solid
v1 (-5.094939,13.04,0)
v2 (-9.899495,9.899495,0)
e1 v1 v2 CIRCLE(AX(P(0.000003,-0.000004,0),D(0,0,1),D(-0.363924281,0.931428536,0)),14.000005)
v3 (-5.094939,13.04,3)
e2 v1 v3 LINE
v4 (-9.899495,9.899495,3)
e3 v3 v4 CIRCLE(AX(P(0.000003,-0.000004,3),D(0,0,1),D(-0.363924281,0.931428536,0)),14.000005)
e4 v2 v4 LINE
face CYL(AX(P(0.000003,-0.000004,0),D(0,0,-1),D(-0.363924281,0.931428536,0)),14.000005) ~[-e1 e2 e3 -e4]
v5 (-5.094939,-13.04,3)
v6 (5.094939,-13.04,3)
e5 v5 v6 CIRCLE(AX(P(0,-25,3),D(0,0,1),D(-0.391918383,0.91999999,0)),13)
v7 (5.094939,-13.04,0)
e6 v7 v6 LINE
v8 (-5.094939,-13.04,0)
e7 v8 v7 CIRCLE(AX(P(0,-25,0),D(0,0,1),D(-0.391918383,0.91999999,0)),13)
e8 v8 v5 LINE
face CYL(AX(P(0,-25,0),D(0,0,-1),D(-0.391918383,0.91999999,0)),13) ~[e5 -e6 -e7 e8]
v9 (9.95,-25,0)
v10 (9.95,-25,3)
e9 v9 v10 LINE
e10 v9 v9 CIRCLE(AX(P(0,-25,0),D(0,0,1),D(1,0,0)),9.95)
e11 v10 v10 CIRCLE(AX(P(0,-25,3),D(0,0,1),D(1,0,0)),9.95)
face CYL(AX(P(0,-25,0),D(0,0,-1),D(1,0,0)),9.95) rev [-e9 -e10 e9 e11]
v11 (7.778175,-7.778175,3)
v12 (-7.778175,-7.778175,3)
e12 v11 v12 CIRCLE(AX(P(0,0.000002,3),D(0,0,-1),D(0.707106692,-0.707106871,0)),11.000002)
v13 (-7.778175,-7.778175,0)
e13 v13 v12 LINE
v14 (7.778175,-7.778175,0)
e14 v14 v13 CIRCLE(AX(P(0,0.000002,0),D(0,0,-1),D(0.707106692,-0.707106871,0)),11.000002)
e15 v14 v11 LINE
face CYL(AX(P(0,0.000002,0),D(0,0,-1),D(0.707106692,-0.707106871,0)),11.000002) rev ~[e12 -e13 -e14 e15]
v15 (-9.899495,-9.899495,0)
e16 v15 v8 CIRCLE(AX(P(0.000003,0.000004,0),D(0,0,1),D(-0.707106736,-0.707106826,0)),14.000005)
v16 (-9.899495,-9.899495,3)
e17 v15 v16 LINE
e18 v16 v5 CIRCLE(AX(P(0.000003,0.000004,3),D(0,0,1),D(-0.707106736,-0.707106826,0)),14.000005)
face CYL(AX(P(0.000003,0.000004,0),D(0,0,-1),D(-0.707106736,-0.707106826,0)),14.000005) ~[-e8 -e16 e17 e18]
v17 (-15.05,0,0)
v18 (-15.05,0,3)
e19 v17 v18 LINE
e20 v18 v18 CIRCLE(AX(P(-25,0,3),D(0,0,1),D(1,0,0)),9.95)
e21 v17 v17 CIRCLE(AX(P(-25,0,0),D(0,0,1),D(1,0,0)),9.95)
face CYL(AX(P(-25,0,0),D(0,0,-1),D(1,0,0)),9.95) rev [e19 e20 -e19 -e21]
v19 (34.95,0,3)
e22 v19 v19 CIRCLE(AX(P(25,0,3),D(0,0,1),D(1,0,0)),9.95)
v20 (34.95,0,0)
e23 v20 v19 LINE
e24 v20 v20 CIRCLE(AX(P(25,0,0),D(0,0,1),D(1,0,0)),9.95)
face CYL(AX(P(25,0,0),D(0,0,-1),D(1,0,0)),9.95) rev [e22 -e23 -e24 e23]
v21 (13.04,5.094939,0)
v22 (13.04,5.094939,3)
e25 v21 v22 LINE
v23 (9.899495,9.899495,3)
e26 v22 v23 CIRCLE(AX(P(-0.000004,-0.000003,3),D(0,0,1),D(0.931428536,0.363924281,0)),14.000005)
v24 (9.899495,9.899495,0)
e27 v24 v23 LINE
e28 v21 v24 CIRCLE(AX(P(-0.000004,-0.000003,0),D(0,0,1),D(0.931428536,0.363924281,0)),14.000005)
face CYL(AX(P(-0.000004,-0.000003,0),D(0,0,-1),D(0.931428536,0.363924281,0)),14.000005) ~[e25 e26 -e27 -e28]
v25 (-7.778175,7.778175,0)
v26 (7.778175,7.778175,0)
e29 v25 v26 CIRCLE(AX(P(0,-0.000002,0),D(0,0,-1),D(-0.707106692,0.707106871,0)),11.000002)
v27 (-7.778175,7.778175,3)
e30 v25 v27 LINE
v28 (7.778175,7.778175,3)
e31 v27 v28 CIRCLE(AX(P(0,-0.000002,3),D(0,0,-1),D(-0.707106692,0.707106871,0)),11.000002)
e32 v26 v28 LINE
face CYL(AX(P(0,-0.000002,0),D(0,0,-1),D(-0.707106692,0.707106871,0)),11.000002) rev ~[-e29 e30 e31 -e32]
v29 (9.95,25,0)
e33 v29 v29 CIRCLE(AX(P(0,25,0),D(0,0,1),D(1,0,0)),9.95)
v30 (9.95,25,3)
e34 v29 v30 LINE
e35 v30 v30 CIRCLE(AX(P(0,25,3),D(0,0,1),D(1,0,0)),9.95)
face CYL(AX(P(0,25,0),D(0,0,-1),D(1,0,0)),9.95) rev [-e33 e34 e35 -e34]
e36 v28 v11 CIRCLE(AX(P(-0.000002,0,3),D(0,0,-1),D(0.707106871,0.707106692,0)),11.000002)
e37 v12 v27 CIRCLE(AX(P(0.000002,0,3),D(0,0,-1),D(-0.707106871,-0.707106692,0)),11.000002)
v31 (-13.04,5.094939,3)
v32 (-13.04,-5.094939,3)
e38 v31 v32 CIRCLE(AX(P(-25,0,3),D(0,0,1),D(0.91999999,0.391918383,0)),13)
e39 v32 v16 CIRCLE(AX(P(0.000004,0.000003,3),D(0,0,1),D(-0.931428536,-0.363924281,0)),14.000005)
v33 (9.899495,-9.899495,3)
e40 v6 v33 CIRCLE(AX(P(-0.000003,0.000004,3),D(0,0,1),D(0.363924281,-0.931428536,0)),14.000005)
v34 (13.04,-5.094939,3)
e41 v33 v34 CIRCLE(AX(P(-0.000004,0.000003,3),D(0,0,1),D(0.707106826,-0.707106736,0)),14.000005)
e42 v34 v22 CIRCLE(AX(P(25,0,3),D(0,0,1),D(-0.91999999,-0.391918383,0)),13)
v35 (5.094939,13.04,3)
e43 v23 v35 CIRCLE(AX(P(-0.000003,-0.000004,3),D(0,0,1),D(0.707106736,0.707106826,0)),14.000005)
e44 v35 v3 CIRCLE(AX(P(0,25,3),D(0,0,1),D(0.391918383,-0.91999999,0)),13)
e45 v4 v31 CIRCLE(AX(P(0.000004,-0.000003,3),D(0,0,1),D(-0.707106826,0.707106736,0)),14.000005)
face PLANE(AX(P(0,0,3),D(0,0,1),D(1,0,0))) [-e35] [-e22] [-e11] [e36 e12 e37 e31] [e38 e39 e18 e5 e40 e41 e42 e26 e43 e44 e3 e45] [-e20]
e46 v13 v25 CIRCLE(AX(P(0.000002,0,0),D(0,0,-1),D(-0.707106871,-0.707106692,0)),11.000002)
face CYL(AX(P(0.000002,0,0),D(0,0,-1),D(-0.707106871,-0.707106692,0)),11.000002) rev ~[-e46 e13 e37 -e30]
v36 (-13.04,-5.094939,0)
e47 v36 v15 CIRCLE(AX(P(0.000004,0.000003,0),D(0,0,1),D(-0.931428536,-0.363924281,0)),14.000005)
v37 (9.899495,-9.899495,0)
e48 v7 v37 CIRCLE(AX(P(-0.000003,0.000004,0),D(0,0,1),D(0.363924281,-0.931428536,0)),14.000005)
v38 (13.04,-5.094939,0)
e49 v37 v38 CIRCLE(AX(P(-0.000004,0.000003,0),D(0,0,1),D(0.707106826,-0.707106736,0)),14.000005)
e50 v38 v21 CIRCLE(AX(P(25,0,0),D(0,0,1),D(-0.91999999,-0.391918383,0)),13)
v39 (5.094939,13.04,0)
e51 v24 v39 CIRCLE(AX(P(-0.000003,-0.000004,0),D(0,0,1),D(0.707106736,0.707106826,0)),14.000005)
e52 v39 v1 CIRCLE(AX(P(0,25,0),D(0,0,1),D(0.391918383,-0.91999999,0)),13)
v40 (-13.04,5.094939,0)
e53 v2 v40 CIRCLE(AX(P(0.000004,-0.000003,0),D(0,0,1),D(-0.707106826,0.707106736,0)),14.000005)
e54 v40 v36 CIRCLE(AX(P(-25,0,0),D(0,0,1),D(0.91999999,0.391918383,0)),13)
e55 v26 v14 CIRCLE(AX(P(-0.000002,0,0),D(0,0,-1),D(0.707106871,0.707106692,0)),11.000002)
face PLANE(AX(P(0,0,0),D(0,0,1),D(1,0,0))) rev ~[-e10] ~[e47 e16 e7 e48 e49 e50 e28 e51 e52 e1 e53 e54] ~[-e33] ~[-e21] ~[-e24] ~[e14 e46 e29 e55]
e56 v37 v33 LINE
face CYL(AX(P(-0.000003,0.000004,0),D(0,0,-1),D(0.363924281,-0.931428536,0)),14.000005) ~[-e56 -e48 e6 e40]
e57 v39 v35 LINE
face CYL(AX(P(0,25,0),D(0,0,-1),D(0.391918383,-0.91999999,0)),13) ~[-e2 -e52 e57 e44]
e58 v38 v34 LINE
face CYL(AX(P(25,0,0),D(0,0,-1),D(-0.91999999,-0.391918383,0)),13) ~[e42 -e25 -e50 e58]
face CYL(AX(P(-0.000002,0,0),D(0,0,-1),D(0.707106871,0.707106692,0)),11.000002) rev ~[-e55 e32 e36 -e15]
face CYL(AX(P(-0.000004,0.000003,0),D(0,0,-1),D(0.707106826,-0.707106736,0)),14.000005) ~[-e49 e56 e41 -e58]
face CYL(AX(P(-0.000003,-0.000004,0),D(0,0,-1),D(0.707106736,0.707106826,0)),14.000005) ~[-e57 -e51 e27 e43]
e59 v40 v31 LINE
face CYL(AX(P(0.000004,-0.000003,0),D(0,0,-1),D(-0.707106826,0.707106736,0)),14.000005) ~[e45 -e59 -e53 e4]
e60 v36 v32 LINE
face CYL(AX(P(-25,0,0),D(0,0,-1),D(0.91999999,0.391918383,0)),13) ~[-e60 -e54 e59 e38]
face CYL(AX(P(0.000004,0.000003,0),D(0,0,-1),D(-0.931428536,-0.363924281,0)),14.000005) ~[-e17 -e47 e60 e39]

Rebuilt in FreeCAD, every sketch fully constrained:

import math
import FreeCAD as App
import Part
import Sketcher
from FreeCAD import Vector

doc = App.newDocument("Part")
body = doc.addObject("PartDesign::Body", "Body")

# Sketch on XY plane
sketch1 = body.newObject("Sketcher::SketchObject", "Sketch")
sketch1.AttachmentSupport = (doc.getObject("XY_Plane"), [""])
sketch1.MapMode = "FlatFace"
sketch1.addGeometry(Part.ArcOfCircle(Part.Circle(Vector(0, 25, 0), Vector(0, 0, 1), 13), math.radians(-67), math.radians(247)), False)
sketch1.addGeometry(Part.ArcOfCircle(Part.Circle(Vector(0, 0, 0), Vector(0, 0, 1), 14), math.radians(111), math.radians(135)), False)
sketch1.addGeometry(Part.ArcOfCircle(Part.Circle(Vector(0, 0, 0), Vector(0, 0, 1), 14), math.radians(135), math.radians(159)), False)
sketch1.addGeometry(Part.ArcOfCircle(Part.Circle(Vector(-25, 0, 0), Vector(0, 0, 1), 13), math.radians(23), math.radians(337)), False)
sketch1.addGeometry(Part.ArcOfCircle(Part.Circle(Vector(0, 0, 0), Vector(0, 0, 1), 14), math.radians(-159), math.radians(-135)), False)
sketch1.addGeometry(Part.ArcOfCircle(Part.Circle(Vector(0, 0, 0), Vector(0, 0, 1), 14), math.radians(-135), math.radians(-111)), False)
sketch1.addGeometry(Part.ArcOfCircle(Part.Circle(Vector(0, -25, 0), Vector(0, 0, 1), 13), math.radians(113), math.radians(427)), False)
sketch1.addGeometry(Part.ArcOfCircle(Part.Circle(Vector(0, 0, 0), Vector(0, 0, 1), 14), math.radians(-69), math.radians(-45)), False)
sketch1.addGeometry(Part.ArcOfCircle(Part.Circle(Vector(0, 0, 0), Vector(0, 0, 1), 14), math.radians(-45), math.radians(-21)), False)
sketch1.addGeometry(Part.ArcOfCircle(Part.Circle(Vector(25, 0, 0), Vector(0, 0, 1), 13), math.radians(-157), math.radians(157)), False)
sketch1.addGeometry(Part.ArcOfCircle(Part.Circle(Vector(0, 0, 0), Vector(0, 0, 1), 14), math.radians(21), math.radians(45)), False)
sketch1.addGeometry(Part.ArcOfCircle(Part.Circle(Vector(0, 0, 0), Vector(0, 0, 1), 14), math.radians(45), math.radians(69)), False)
sketch1.addGeometry(Part.Circle(Vector(0, -25, 0), Vector(0, 0, 1), 10), False)
sketch1.addGeometry(Part.Circle(Vector(-25, 0, 0), Vector(0, 0, 1), 10), False)
sketch1.addGeometry(Part.ArcOfCircle(Part.Circle(Vector(0, 0, 0), Vector(0, 0, 1), 11), math.radians(135), math.radians(225)), False)
sketch1.addGeometry(Part.ArcOfCircle(Part.Circle(Vector(0, 0, 0), Vector(0, 0, 1), 11), math.radians(45), math.radians(135)), False)
sketch1.addGeometry(Part.ArcOfCircle(Part.Circle(Vector(0, 0, 0), Vector(0, 0, 1), 11), math.radians(-45), math.radians(45)), False)
sketch1.addGeometry(Part.ArcOfCircle(Part.Circle(Vector(0, 0, 0), Vector(0, 0, 1), 11), math.radians(-135), math.radians(-45)), False)
sketch1.addGeometry(Part.Circle(Vector(25, 0, 0), Vector(0, 0, 1), 10), False)
sketch1.addGeometry(Part.Circle(Vector(0, 25, 0), Vector(0, 0, 1), 10), False)
sketch1.addConstraint(Sketcher.Constraint("Coincident", 0, 2, 1, 1))
sketch1.addConstraint(Sketcher.Constraint("Tangent", 1, 2, 2, 1))
sketch1.addConstraint(Sketcher.Constraint("Coincident", 2, 2, 3, 1))
sketch1.addConstraint(Sketcher.Constraint("Coincident", 3, 2, 4, 1))
sketch1.addConstraint(Sketcher.Constraint("Tangent", 4, 2, 5, 1))
sketch1.addConstraint(Sketcher.Constraint("Coincident", 5, 2, 6, 1))
sketch1.addConstraint(Sketcher.Constraint("Coincident", 6, 2, 7, 1))
sketch1.addConstraint(Sketcher.Constraint("Tangent", 7, 2, 8, 1))
sketch1.addConstraint(Sketcher.Constraint("Coincident", 8, 2, 9, 1))
sketch1.addConstraint(Sketcher.Constraint("Coincident", 9, 2, 10, 1))
sketch1.addConstraint(Sketcher.Constraint("Tangent", 10, 2, 11, 1))
sketch1.addConstraint(Sketcher.Constraint("Coincident", 11, 2, 0, 1))
sketch1.addConstraint(Sketcher.Constraint("Tangent", 14, 1, 15, 2))
sketch1.addConstraint(Sketcher.Constraint("Tangent", 15, 1, 16, 2))
sketch1.addConstraint(Sketcher.Constraint("Tangent", 16, 1, 17, 2))
sketch1.addConstraint(Sketcher.Constraint("Tangent", 17, 1, 14, 2))
sketch1.addConstraint(Sketcher.Constraint("Coincident", 1, 3, -1, 1))
sketch1.addConstraint(Sketcher.Constraint("Coincident", 4, 3, -1, 1))
sketch1.addConstraint(Sketcher.Constraint("Coincident", 7, 3, -1, 1))
sketch1.addConstraint(Sketcher.Constraint("Coincident", 10, 3, -1, 1))
sketch1.addConstraint(Sketcher.Constraint("Coincident", 14, 3, -1, 1))
sketch1.addConstraint(Sketcher.Constraint("Coincident", 12, 3, 6, 3))
sketch1.addConstraint(Sketcher.Constraint("Coincident", 13, 3, 3, 3))
sketch1.addConstraint(Sketcher.Constraint("Coincident", 18, 3, 9, 3))
sketch1.addConstraint(Sketcher.Constraint("Coincident", 19, 3, 0, 3))
sketch1.addConstraint(Sketcher.Constraint("Equal", 1, 2))
sketch1.addConstraint(Sketcher.Constraint("Equal", 0, 3))
sketch1.addConstraint(Sketcher.Constraint("Equal", 2, 4))
sketch1.addConstraint(Sketcher.Constraint("Equal", 4, 5))
sketch1.addConstraint(Sketcher.Constraint("Equal", 3, 6))
sketch1.addConstraint(Sketcher.Constraint("Equal", 5, 7))
sketch1.addConstraint(Sketcher.Constraint("Equal", 7, 8))
sketch1.addConstraint(Sketcher.Constraint("Equal", 6, 9))
sketch1.addConstraint(Sketcher.Constraint("Equal", 8, 10))
sketch1.addConstraint(Sketcher.Constraint("Equal", 10, 11))
sketch1.addConstraint(Sketcher.Constraint("Equal", 12, 13))
sketch1.addConstraint(Sketcher.Constraint("Equal", 14, 15))
sketch1.addConstraint(Sketcher.Constraint("Equal", 13, 18))
sketch1.addConstraint(Sketcher.Constraint("Equal", 18, 19))
sketch1.addConstraint(Sketcher.Constraint("Symmetric", 0, 3, 6, 3, -1, 1))
sketch1.addConstraint(Sketcher.Constraint("Symmetric", 3, 3, 9, 3, -1, 1))
sketch1.addConstraint(Sketcher.Constraint("PointOnObject", 0, 3, -2))
sketch1.addConstraint(Sketcher.Constraint("PointOnObject", 3, 3, -1))
sketch1.addConstraint(Sketcher.Constraint("Horizontal", 4, 2, 7, 2))
sketch1.addConstraint(Sketcher.Constraint("Horizontal", 1, 2, 10, 2))
sketch1.addConstraint(Sketcher.Constraint("Horizontal", 14, 1, 15, 1))
sketch1.addConstraint(Sketcher.Constraint("Horizontal", 16, 1, 17, 1))
sketch1.addConstraint(Sketcher.Constraint("Vertical", 1, 2, 4, 2))
sketch1.addConstraint(Sketcher.Constraint("Vertical", 15, 1, 16, 1))
sketch1.addConstraint(Sketcher.Constraint("Radius", 0, 13.0))
sketch1.addConstraint(Sketcher.Constraint("Radius", 14, 11.000002))
sketch1.addConstraint(Sketcher.Constraint("Diameter", 12, 19.9))
sketch1.addConstraint(Sketcher.Constraint("DistanceY", -1, 1, 0, 3, 25.0))
sketch1.addConstraint(Sketcher.Constraint("DistanceX", 3, 3, -1, 1, 25.0))
sketch1.addConstraint(Sketcher.Constraint("DistanceY", -1, 1, 0, 2, 13.04))
sketch1.addConstraint(Sketcher.Constraint("DistanceY", 7, 3, 1, 2, 9.899491))
sketch1.addConstraint(Sketcher.Constraint("DistanceX", 1, 2, 14, 1, 2.12132))
pad1 = body.newObject("PartDesign::Pad", "Pad")
pad1.Profile = sketch1
pad1.Length = 3

doc.recompute()
